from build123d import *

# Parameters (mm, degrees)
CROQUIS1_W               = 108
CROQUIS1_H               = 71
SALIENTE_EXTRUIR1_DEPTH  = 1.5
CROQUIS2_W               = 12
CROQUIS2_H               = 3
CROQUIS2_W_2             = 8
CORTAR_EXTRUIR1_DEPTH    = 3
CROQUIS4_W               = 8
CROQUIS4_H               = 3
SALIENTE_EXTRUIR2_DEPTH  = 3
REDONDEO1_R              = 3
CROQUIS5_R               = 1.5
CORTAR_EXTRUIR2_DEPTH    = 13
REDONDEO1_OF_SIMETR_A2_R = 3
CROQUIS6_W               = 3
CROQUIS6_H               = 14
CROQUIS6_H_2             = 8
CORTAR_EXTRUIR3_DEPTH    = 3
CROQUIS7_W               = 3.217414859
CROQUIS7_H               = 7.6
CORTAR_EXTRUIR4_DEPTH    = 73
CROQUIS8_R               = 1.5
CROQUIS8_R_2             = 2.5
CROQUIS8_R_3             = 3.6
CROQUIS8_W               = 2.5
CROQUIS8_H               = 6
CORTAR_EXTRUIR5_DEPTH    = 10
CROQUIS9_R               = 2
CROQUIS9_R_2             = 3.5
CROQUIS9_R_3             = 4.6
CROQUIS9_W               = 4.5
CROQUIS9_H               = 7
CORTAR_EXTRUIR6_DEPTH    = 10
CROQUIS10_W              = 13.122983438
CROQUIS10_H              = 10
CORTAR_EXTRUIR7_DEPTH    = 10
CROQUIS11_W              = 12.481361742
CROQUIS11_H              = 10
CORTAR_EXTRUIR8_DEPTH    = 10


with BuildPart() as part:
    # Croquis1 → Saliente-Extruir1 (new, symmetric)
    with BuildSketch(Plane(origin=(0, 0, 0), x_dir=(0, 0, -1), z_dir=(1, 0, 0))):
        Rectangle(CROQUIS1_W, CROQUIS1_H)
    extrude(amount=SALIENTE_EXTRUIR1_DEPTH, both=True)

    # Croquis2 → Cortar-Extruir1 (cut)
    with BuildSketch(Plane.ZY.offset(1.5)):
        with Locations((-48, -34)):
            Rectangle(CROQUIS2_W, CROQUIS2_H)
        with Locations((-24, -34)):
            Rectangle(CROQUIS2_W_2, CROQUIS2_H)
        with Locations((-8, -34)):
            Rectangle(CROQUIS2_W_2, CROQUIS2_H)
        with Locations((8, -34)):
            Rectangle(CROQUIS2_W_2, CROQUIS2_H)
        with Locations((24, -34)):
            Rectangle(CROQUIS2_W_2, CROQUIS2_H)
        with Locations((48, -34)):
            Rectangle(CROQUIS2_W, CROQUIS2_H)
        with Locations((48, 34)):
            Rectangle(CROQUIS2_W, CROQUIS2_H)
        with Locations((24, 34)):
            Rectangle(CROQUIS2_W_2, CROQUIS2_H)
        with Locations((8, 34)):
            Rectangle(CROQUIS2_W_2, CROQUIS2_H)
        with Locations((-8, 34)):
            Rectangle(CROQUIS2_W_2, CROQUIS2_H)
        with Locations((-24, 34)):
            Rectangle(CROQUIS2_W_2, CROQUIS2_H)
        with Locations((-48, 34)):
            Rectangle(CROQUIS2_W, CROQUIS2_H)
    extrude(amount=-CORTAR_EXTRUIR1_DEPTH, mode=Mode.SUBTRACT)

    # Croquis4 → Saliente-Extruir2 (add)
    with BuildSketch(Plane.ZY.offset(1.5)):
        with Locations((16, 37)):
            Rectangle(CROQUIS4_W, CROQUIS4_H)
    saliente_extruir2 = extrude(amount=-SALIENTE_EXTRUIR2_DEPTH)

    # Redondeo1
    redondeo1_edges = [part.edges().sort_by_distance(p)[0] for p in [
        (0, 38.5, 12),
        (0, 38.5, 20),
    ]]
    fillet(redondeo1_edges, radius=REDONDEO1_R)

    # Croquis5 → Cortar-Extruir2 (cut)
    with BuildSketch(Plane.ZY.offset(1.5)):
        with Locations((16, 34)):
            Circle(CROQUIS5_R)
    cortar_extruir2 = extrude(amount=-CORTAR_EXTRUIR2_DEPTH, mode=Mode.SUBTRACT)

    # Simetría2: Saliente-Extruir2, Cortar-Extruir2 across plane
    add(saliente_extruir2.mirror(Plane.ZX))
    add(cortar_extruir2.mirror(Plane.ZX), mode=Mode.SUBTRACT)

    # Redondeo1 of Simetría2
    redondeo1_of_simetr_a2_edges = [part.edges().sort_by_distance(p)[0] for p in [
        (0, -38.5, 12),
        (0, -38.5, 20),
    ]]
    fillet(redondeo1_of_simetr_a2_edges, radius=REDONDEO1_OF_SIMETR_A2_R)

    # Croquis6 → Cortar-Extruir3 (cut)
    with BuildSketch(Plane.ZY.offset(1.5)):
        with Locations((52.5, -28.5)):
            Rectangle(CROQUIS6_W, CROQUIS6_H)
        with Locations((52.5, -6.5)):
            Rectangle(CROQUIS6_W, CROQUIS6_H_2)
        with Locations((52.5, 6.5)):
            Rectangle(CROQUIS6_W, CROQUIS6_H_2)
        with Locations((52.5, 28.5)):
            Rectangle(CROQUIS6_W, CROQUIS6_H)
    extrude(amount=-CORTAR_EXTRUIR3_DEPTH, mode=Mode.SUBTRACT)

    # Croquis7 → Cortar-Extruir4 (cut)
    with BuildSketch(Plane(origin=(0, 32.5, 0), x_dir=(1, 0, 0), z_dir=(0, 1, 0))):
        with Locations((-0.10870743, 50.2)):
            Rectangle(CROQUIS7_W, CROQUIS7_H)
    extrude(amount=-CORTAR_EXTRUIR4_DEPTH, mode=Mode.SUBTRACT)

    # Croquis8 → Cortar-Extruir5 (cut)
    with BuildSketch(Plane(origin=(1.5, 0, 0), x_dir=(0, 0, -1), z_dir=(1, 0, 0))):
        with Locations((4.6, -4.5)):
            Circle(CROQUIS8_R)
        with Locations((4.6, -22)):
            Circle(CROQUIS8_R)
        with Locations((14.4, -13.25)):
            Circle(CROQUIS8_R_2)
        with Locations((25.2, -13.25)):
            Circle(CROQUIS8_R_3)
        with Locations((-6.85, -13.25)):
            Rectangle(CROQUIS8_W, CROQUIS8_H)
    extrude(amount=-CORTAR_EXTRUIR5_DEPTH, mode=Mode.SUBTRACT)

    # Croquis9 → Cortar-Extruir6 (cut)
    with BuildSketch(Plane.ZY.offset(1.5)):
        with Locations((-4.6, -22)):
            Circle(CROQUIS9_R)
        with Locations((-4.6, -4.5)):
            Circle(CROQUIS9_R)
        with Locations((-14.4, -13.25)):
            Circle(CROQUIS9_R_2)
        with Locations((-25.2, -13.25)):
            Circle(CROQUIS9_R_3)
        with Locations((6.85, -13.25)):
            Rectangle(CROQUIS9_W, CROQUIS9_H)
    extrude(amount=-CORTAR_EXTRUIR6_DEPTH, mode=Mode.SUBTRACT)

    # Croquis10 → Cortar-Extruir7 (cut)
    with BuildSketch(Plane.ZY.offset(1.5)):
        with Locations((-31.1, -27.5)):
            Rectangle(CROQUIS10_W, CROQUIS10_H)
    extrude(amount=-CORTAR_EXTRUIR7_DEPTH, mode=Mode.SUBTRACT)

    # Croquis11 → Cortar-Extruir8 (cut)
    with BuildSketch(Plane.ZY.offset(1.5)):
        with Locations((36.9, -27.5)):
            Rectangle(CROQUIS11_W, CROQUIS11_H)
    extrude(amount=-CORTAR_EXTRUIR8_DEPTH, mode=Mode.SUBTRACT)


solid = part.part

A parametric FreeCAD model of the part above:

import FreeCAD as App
import Part
import Sketcher
Q = App.Units.Quantity


def edges_at(feature, points):
    """Names of the edges that pass closest to the given points."""
    edges = feature.Shape.Edges
    near = lambda p: min(range(len(edges)), key=lambda i: edges[i].distToShape(Part.Vertex(*p))[0])
    return sorted({f"Edge{near(p) + 1}" for p in points})


def add_polygon(sketch, points):
    """Adds a closed chain of lines whose ends are joined by coincident constraints."""
    first, n = sketch.GeometryCount, len(points)
    for a, b in zip(points, points[1:] + points[:1]):
        sketch.addGeometry(Part.LineSegment(App.Vector(*a, 0), App.Vector(*b, 0)), False)
    for i in range(n):
        sketch.addConstraint(Sketcher.Constraint("Coincident", first + i, 2, first + (i + 1) % n, 1))

doc = App.newDocument("Part")
body = doc.addObject("PartDesign::Body", "Body")

# Sketch on YZ plane
sketch1 = body.newObject("Sketcher::SketchObject", "Sketch")
sketch1.AttachmentSupport = (doc.getObject("YZ_Plane"), [""])
sketch1.MapMode = "FlatFace"
add_polygon(sketch1, [(35.5, 54), (-35.5, 54), (-35.5, -54), (35.5, -54)])  # lines 0-3
sketch1.addConstraint([
    Sketcher.Constraint("Horizontal", 0),
    Sketcher.Constraint("Vertical", 1),
    Sketcher.Constraint("Horizontal", 2),
    Sketcher.Constraint("Vertical", 3),
    Sketcher.Constraint("Symmetric", 0, 2, 2, 2, -1, 1),
    Sketcher.Constraint("DistanceX", 0, 2, 0, 1, Q("71 mm")),
    Sketcher.Constraint("DistanceY", 1, 2, 1, 1, Q("108 mm")),
])
pad1 = body.newObject("PartDesign::Pad", "Pad")
pad1.Profile = sketch1
pad1.Length = 3
pad1.Midplane = True

# Sketch on YZ plane
sketch2 = body.newObject("Sketcher::SketchObject", "Sketch001")
sketch2.AttachmentSupport = (doc.getObject("YZ_Plane"), [""])
sketch2.MapMode = "FlatFace"
sketch2.AttachmentOffset = App.Placement(App.Vector(0, 0, -1.5), App.Rotation())
add_polygon(sketch2, [(-32.5, -54), (-35.5, -54), (-35.5, -42), (-32.5, -42)])  # lines 0-3
add_polygon(sketch2, [(-32.5, -28), (-35.5, -28), (-35.5, -20), (-32.5, -20)])  # lines 4-7
add_polygon(sketch2, [(-32.5, -12), (-35.5, -12), (-35.5, -4), (-32.5, -4)])  # lines 8-11
add_polygon(sketch2, [(-32.5, 4), (-35.5, 4), (-35.5, 12), (-32.5, 12)])  # lines 12-15
add_polygon(sketch2, [(-32.5, 20), (-35.5, 20), (-35.5, 28), (-32.5, 28)])  # lines 16-19
add_polygon(sketch2, [(-32.5, 42), (-35.5, 42), (-35.5, 54), (-32.5, 54)])  # lines 20-23
add_polygon(sketch2, [(35.5, 42), (32.5, 42), (32.5, 54), (35.5, 54)])  # lines 24-27
add_polygon(sketch2, [(35.5, 20), (32.5, 20), (32.5, 28), (35.5, 28)])  # lines 28-31
add_polygon(sketch2, [(35.5, 4), (32.5, 4), (32.5, 12), (35.5, 12)])  # lines 32-35
add_polygon(sketch2, [(35.5, -12), (32.5, -12), (32.5, -4), (35.5, -4)])  # lines 36-39
add_polygon(sketch2, [(35.5, -28), (32.5, -28), (32.5, -20), (35.5, -20)])  # lines 40-43
add_polygon(sketch2, [(35.5, -54), (32.5, -54), (32.5, -42), (35.5, -42)])  # lines 44-47
sketch2.addConstraint([
    Sketcher.Constraint("Horizontal", 0),
    Sketcher.Constraint("Vertical", 1),
    Sketcher.Constraint("Horizontal", 2),
    Sketcher.Constraint("Vertical", 3),
    Sketcher.Constraint("Horizontal", 4),
    Sketcher.Constraint("Vertical", 5),
    Sketcher.Constraint("Horizontal", 6),
    Sketcher.Constraint("Vertical", 7),
    Sketcher.Constraint("Horizontal", 8),
    Sketcher.Constraint("Vertical", 9),
    Sketcher.Constraint("Horizontal", 10),
    Sketcher.Constraint("Vertical", 11),
    Sketcher.Constraint("Horizontal", 12),
    Sketcher.Constraint("Vertical", 13),
    Sketcher.Constraint("Horizontal", 14),
    Sketcher.Constraint("Vertical", 15),
    Sketcher.Constraint("Horizontal", 16),
    Sketcher.Constraint("Vertical", 17),
    Sketcher.Constraint("Horizontal", 18),
    Sketcher.Constraint("Vertical", 19),
    Sketcher.Constraint("Horizontal", 20),
    Sketcher.Constraint("Vertical", 21),
    Sketcher.Constraint("Horizontal", 22),
    Sketcher.Constraint("Vertical", 23),
    Sketcher.Constraint("Horizontal", 24),
    Sketcher.Constraint("Vertical", 25),
    Sketcher.Constraint("Horizontal", 26),
    Sketcher.Constraint("Vertical", 27),
    Sketcher.Constraint("Horizontal", 28),
    Sketcher.Constraint("Vertical", 29),
    Sketcher.Constraint("Horizontal", 30),
    Sketcher.Constraint("Vertical", 31),
    Sketcher.Constraint("Horizontal", 32),
    Sketcher.Constraint("Vertical", 33),
    Sketcher.Constraint("Horizontal", 34),
    Sketcher.Constraint("Vertical", 35),
    Sketcher.Constraint("Horizontal", 36),
    Sketcher.Constraint("Vertical", 37),
    Sketcher.Constraint("Horizontal", 38),
    Sketcher.Constraint("Vertical", 39),
    Sketcher.Constraint("Horizontal", 40),
    Sketcher.Constraint("Vertical", 41),
    Sketcher.Constraint("Horizontal", 42),
    Sketcher.Constraint("Vertical", 43),
    Sketcher.Constraint("Horizontal", 44),
    Sketcher.Constraint("Vertical", 45),
    Sketcher.Constraint("Horizontal", 46),
    Sketcher.Constraint("Vertical", 47),
    Sketcher.Constraint("Symmetric", 2, 2, 24, 2, -1, 1),
    Sketcher.Constraint("Symmetric", 0, 2, 26, 2, -1, 1),
    Sketcher.Constraint("Symmetric", 6, 2, 28, 2, -1, 1),
    Sketcher.Constraint("Symmetric", 4, 2, 30, 2, -1, 1),
    Sketcher.Constraint("Symmetric", 10, 2, 32, 2, -1, 1),
    Sketcher.Constraint("Symmetric", 8, 2, 34, 2, -1, 1),
    Sketcher.Constraint("Symmetric", 14, 2, 36, 2, -1, 1),
    Sketcher.Constraint("Symmetric", 12, 2, 38, 2, -1, 1),
    Sketcher.Constraint("Symmetric", 18, 2, 40, 2, -1, 1),
    Sketcher.Constraint("Symmetric", 16, 2, 42, 2, -1, 1),
    Sketcher.Constraint("Symmetric", 22, 2, 44, 2, -1, 1),
    Sketcher.Constraint("Symmetric", 20, 2, 46, 2, -1, 1),
    Sketcher.Constraint("Symmetric", 23, 2, 24, 2, -2),
    Sketcher.Constraint("Symmetric", 21, 2, 26, 2, -2),
    Sketcher.Constraint("Symmetric", 19, 2, 28, 2, -2),
    Sketcher.Constraint("Symmetric", 17, 2, 30, 2, -2),
    Sketcher.Constraint("Symmetric", 15, 2, 32, 2, -2),
    Sketcher.Constraint("Symmetric", 13, 2, 34, 2, -2),
    Sketcher.Constraint("Vertical", 1, 2, 4, 2),
    Sketcher.Constraint("Vertical", 3, 2, 6, 2),
    Sketcher.Constraint("Vertical", 5, 2, 8, 2),
    Sketcher.Constraint("Vertical", 7, 2, 10, 2),
    Sketcher.Constraint("Equal", 7, 9),
    Sketcher.Constraint("DistanceX", 0, 2, 0, 1, Q("3 mm")),
    Sketcher.Constraint("DistanceY", 1, 1, 1, 2, Q("12 mm")),
    Sketcher.Constraint("DistanceY", 5, 1, 5, 2, Q("8 mm")),
    Sketcher.Constraint("DistanceY", 0, 2, -1, 1, Q("54 mm")),
    Sketcher.Constraint("DistanceY", 4, 2, -1, 1, Q("28 mm")),
    Sketcher.Constraint("DistanceY", 8, 2, -1, 1, Q("12 mm")),
    Sketcher.Constraint("DistanceX", 23, 2, 24, 2, Q("65 mm")),
])
pocket1 = body.newObject("PartDesign::Pocket", "Pocket")
pocket1.Profile = sketch2
pocket1.Length = 3
pocket1.Reversed = True

# Sketch on YZ plane
sketch3 = body.newObject("Sketcher::SketchObject", "Sketch002")
sketch3.AttachmentSupport = (doc.getObject("YZ_Plane"), [""])
sketch3.MapMode = "FlatFace"
sketch3.AttachmentOffset = App.Placement(App.Vector(0, 0, -1.5), App.Rotation())
add_polygon(sketch3, [(38.5, 12), (35.5, 12), (35.5, 20), (38.5, 20)])  # lines 0-3
sketch3.addConstraint([
    Sketcher.Constraint("Horizontal", 0),
    Sketcher.Constraint("Vertical", 1),
    Sketcher.Constraint("Horizontal", 2),
    Sketcher.Constraint("Vertical", 3),
    Sketcher.Constraint("DistanceX", 0, 2, 0, 1, Q("3 mm")),
    Sketcher.Constraint("DistanceY", 1, 1, 1, 2, Q("8 mm")),
    Sketcher.Constraint("DistanceY", -1, 1, 0, 2, Q("12 mm")),
    Sketcher.Constraint("DistanceX", -1, 1, 0, 2, Q("35.5 mm")),
])
pad2 = body.newObject("PartDesign::Pad", "Pad001")
pad2.Profile = sketch3
pad2.Length = 3
doc.recompute()

fillet = body.newObject("PartDesign::Fillet", "Fillet")
fillet.Base = (pad2, edges_at(pad2, [(0, 38.5, 12), (0, 38.5, 20)]))
fillet.Radius = 3

# Sketch on YZ plane
sketch4 = body.newObject("Sketcher::SketchObject", "Sketch003")
sketch4.AttachmentSupport = (doc.getObject("YZ_Plane"), [""])
sketch4.MapMode = "FlatFace"
sketch4.AttachmentOffset = App.Placement(App.Vector(0, 0, -1.5), App.Rotation())
sketch4.addGeometry(Part.Circle(App.Vector(34, 16, 0), App.Vector(0, 0, 1), 1.5), False)
sketch4.addConstraint([
    Sketcher.Constraint("Diameter", 0, Q("3 mm")),
    Sketcher.Constraint("DistanceX", -1, 1, 0, 3, Q("34 mm")),
    Sketcher.Constraint("DistanceY", -1, 1, 0, 3, Q("16 mm")),
])
pocket2 = body.newObject("PartDesign::Pocket", "Pocket001")
pocket2.Profile = sketch4
pocket2.Length = 13
pocket2.Reversed = True
doc.recompute()

mirrored = body.newObject("PartDesign::Mirrored", "Mirrored")
mirrored.Originals = [pad2, pocket2]
mirrored.MirrorPlane = (doc.getObject("XZ_Plane"), [""])
body.Tip = mirrored
doc.recompute()

fillet2 = body.newObject("PartDesign::Fillet", "Fillet001")
fillet2.Base = (mirrored, edges_at(mirrored, [(0, -38.5, 12), (0, -38.5, 20)]))
fillet2.Radius = 3

# Sketch on YZ plane
sketch5 = body.newObject("Sketcher::SketchObject", "Sketch004")
sketch5.AttachmentSupport = (doc.getObject("YZ_Plane"), [""])
sketch5.MapMode = "FlatFace"
sketch5.AttachmentOffset = App.Placement(App.Vector(0, 0, -1.5), App.Rotation())
add_polygon(sketch5, [(-21.5, 51), (-35.5, 51), (-35.5, 54), (-21.5, 54)])  # lines 0-3
add_polygon(sketch5, [(-2.5, 51), (-10.5, 51), (-10.5, 54), (-2.5, 54)])  # lines 4-7
add_polygon(sketch5, [(10.5, 51), (2.5, 51), (2.5, 54), (10.5, 54)])  # lines 8-11
add_polygon(sketch5, [(35.5, 51), (21.5, 51), (21.5, 54), (35.5, 54)])  # lines 12-15
sketch5.addConstraint([
    Sketcher.Constraint("Horizontal", 0),
    Sketcher.Constraint("Vertical", 1),
    Sketcher.Constraint("Horizontal", 2),
    Sketcher.Constraint("Vertical", 3),
    Sketcher.Constraint("Horizontal", 4),
    Sketcher.Constraint("Vertical", 5),
    Sketcher.Constraint("Horizontal", 6),
    Sketcher.Constraint("Vertical", 7),
    Sketcher.Constraint("Horizontal", 8),
    Sketcher.Constraint("Vertical", 9),
    Sketcher.Constraint("Horizontal", 10),
    Sketcher.Constraint("Vertical", 11),
    Sketcher.Constraint("Horizontal", 12),
    Sketcher.Constraint("Vertical", 13),
    Sketcher.Constraint("Horizontal", 14),
    Sketcher.Constraint("Vertical", 15),
    Sketcher.Constraint("Symmetric", 7, 2, 8, 2, -2),
    Sketcher.Constraint("Symmetric", 5, 2, 10, 2, -2),
    Sketcher.Constraint("Symmetric", 3, 2, 12, 2, -2),
    Sketcher.Constraint("Symmetric", 1, 2, 14, 2, -2),
    Sketcher.Constraint("Horizontal", 3, 2, 4, 2),
    Sketcher.Constraint("Horizontal", 2, 2, 5, 2),
    Sketcher.Constraint("DistanceX", 0, 2, 0, 1, Q("14 mm")),
    Sketcher.Constraint("DistanceX", 4, 2, 4, 1, Q("8 mm")),
    Sketcher.Constraint("DistanceY", 1, 1, 1, 2, Q("3 mm")),
    Sketcher.Constraint("DistanceY", -1, 1, 0, 2, Q("51 mm")),
    Sketcher.Constraint("DistanceX", 3, 2, 4, 2, Q("11 mm")),
    Sketcher.Constraint("DistanceX", 7, 2, 8, 2, Q("5 mm")),
])
pocket3 = body.newObject("PartDesign::Pocket", "Pocket002")
pocket3.Profile = sketch5
pocket3.Length = 3
pocket3.Reversed = True

# Sketch on XZ plane
sketch6 = body.newObject("Sketcher::SketchObject", "Sketch005")
sketch6.AttachmentSupport = (doc.getObject("XZ_Plane"), [""])
sketch6.MapMode = "FlatFace"
sketch6.AttachmentOffset = App.Placement(App.Vector(0, 0, -32.5), App.Rotation())
add_polygon(sketch6, [(-1.717415, -54), (-1.717415, -46.4), (1.5, -46.4), (1.5, -54)])  # lines 0-3
sketch6.addConstraint([
    Sketcher.Constraint("Vertical", 0),
    Sketcher.Constraint("Horizontal", 1),
    Sketcher.Constraint("Vertical", 2),
    Sketcher.Constraint("Horizontal", 3),
    Sketcher.Constraint("DistanceY", 0, 1, 0, 2, Q("7.6 mm")),
    Sketcher.Constraint("DistanceY", 2, 2, -1, 1, Q("54 mm")),
    Sketcher.Constraint("DistanceX", -1, 1, 1, 2, Q("1.5 mm")),
    Sketcher.Constraint("DistanceX", 1, 1, 1, 2, Q("3.217415 mm")),
])
pocket4 = body.newObject("PartDesign::Pocket", "Pocket003")
pocket4.Profile = sketch6
pocket4.Length = 73
pocket4.Reversed = True

# Sketch on YZ plane
sketch7 = body.newObject("Sketcher::SketchObject", "Sketch006")
sketch7.AttachmentSupport = (doc.getObject("YZ_Plane"), [""])
sketch7.MapMode = "FlatFace"
sketch7.AttachmentOffset = App.Placement(App.Vector(0, 0, 1.5), App.Rotation())
sketch7.addGeometry(Part.Circle(App.Vector(-4.5, -4.6, 0), App.Vector(0, 0, 1), 1.5), False)  # 0
sketch7.addGeometry(Part.Circle(App.Vector(-22, -4.6, 0), App.Vector(0, 0, 1), 1.5), False)  # 1
sketch7.addGeometry(Part.Circle(App.Vector(-13.25, -14.4, 0), App.Vector(0, 0, 1), 2.5), False)  # 2
sketch7.addGeometry(Part.Circle(App.Vector(-13.25, -25.2, 0), App.Vector(0, 0, 1), 3.6), False)  # 3
add_polygon(sketch7, [(-10.25, 8.1), (-16.25, 8.1), (-16.25, 5.6), (-10.25, 5.6)])  # lines 4-7
sketch7.addConstraint([
    Sketcher.Constraint("Horizontal", 4),
    Sketcher.Constraint("Vertical", 5),
    Sketcher.Constraint("Horizontal", 6),
    Sketcher.Constraint("Vertical", 7),
    Sketcher.Constraint("Equal", 0, 1),
    Sketcher.Constraint("Horizontal", 0, 3, 1, 3),
    Sketcher.Constraint("Vertical", 2, 3, 3, 3),
    Sketcher.Constraint("Diameter", 0, Q("3 mm")),
    Sketcher.Constraint("Diameter", 2, Q("5 mm")),
    Sketcher.Constraint("Diameter", 3, Q("7.2 mm")),
    Sketcher.Constraint("DistanceX", 4, 2, 4, 1, Q("6 mm")),
    Sketcher.Constraint("DistanceY", 5, 2, 5, 1, Q("2.5 mm")),
    Sketcher.Constraint("DistanceX", 1, 3, -1, 1, Q("22 mm")),
    Sketcher.Constraint("DistanceX", 4, 2, 2, 3, Q("3 mm")),
    Sketcher.Constraint("DistanceY", 2, 3, 5, 2, Q("20 mm")),
    Sketcher.Constraint("DistanceX", 0, 3, -1, 1, Q("4.5 mm")),
    Sketcher.Constraint("DistanceY", 0, 3, -1, 1, Q("4.6 mm")),
    Sketcher.Constraint("DistanceY", 2, 3, -1, 1, Q("14.4 mm")),
    Sketcher.Constraint("DistanceY", 3, 3, -1, 1, Q("25.2 mm")),
    Sketcher.Constraint("DistanceX", 2, 3, -1, 1, Q("13.25 mm")),
])
pocket5 = body.newObject("PartDesign::Pocket", "Pocket004")
pocket5.Profile = sketch7
pocket5.Length = 10

# Sketch on YZ plane
sketch8 = body.newObject("Sketcher::SketchObject", "Sketch007")
sketch8.AttachmentSupport = (doc.getObject("YZ_Plane"), [""])
sketch8.MapMode = "FlatFace"
sketch8.AttachmentOffset = App.Placement(App.Vector(0, 0, -1.5), App.Rotation())
sketch8.addGeometry(Part.Circle(App.Vector(-22, -4.6, 0), App.Vector(0, 0, 1), 2), False)  # 0
sketch8.addGeometry(Part.Circle(App.Vector(-4.5, -4.6, 0), App.Vector(0, 0, 1), 2), False)  # 1
sketch8.addGeometry(Part.Circle(App.Vector(-13.25, -14.4, 0), App.Vector(0, 0, 1), 3.5), False)  # 2
sketch8.addGeometry(Part.Circle(App.Vector(-13.25, -25.2, 0), App.Vector(0, 0, 1), 4.6), False)  # 3
add_polygon(sketch8, [(-9.75, 4.6), (-16.75, 4.6), (-16.75, 9.1), (-9.75, 9.1)])  # lines 4-7
sketch8.addConstraint([
    Sketcher.Constraint("Horizontal", 4),
    Sketcher.Constraint("Vertical", 5),
    Sketcher.Constraint("Horizontal", 6),
    Sketcher.Constraint("Vertical", 7),
    Sketcher.Constraint("Equal", 0, 1),
    Sketcher.Constraint("Horizontal", 0, 3, 1, 3),
    Sketcher.Constraint("Vertical", 2, 3, 3, 3),
    Sketcher.Constraint("Diameter", 0, Q("4 mm")),
    Sketcher.Constraint("Diameter", 2, Q("7 mm")),
    Sketcher.Constraint("Diameter", 3, Q("9.2 mm")),
    Sketcher.Constraint("DistanceX", 4, 2, 4, 1, Q("7 mm")),
    Sketcher.Constraint("DistanceY", 5, 1, 5, 2, Q("4.5 mm")),
    Sketcher.Constraint("DistanceX", 0, 3, -1, 1, Q("22 mm")),
    Sketcher.Constraint("DistanceY", 2, 3, 4, 2, Q("19 mm")),
    Sketcher.Constraint("DistanceY", 0, 3, -1, 1, Q("4.6 mm")),
    Sketcher.Constraint("DistanceX", 1, 3, -1, 1, Q("4.5 mm")),
    Sketcher.Constraint("DistanceY", 2, 3, -1, 1, Q("14.4 mm")),
    Sketcher.Constraint("DistanceY", 3, 3, -1, 1, Q("25.2 mm")),
    Sketcher.Constraint("DistanceX", 4, 2, 2, 3, Q("3.5 mm")),
    Sketcher.Constraint("DistanceX", 2, 3, -1, 1, Q("13.25 mm")),
])
pocket6 = body.newObject("PartDesign::Pocket", "Pocket005")
pocket6.Profile = sketch8
pocket6.Length = 10
pocket6.Reversed = True

# Sketch on YZ plane
sketch9 = body.newObject("Sketcher::SketchObject", "Sketch008")
sketch9.AttachmentSupport = (doc.getObject("YZ_Plane"), [""])
sketch9.MapMode = "FlatFace"
sketch9.AttachmentOffset = App.Placement(App.Vector(0, 0, -1.5), App.Rotation())
add_polygon(sketch9, [(-22.5, -37.661492), (-32.5, -37.661492), (-32.5, -24.538508), (-22.5, -24.538508)])  # lines 0-3
sketch9.addConstraint([
    Sketcher.Constraint("Horizontal", 0),
    Sketcher.Constraint("Vertical", 1),
    Sketcher.Constraint("Horizontal", 2),
    Sketcher.Constraint("Vertical", 3),
    Sketcher.Constraint("DistanceX", 0, 2, 0, 1, Q("10 mm")),
    Sketcher.Constraint("DistanceX", 0, 2, -1, 1, Q("32.5 mm")),
    Sketcher.Constraint("DistanceY", 1, 1, 1, 2, Q("13.122983 mm")),
    Sketcher.Constraint("DistanceY", 0, 2, -1, 1, Q("37.661492 mm")),
])
pocket7 = body.newObject("PartDesign::Pocket", "Pocket006")
pocket7.Profile = sketch9
pocket7.Length = 10
pocket7.Reversed = True

# Sketch on YZ plane
sketch10 = body.newObject("Sketcher::SketchObject", "Sketch009")
sketch10.AttachmentSupport = (doc.getObject("YZ_Plane"), [""])
sketch10.MapMode = "FlatFace"
sketch10.AttachmentOffset = App.Placement(App.Vector(0, 0, -1.5), App.Rotation())
add_polygon(sketch10, [(-22.5, 30.659319), (-32.5, 30.659319), (-32.5, 43.140681), (-22.5, 43.140681)])  # lines 0-3
sketch10.addConstraint([
    Sketcher.Constraint("Horizontal", 0),
    Sketcher.Constraint("Vertical", 1),
    Sketcher.Constraint("Horizontal", 2),
    Sketcher.Constraint("Vertical", 3),
    Sketcher.Constraint("DistanceX", 0, 2, 0, 1, Q("10 mm")),
    Sketcher.Constraint("DistanceX", 0, 2, -1, 1, Q("32.5 mm")),
    Sketcher.Constraint("DistanceY", 1, 1, 1, 2, Q("12.481362 mm")),
    Sketcher.Constraint("DistanceY", -1, 1, 0, 2, Q("30.659319 mm")),
])
pocket8 = body.newObject("PartDesign::Pocket", "Pocket007")
pocket8.Profile = sketch10
pocket8.Length = 10
pocket8.Reversed = True

doc.recompute()
